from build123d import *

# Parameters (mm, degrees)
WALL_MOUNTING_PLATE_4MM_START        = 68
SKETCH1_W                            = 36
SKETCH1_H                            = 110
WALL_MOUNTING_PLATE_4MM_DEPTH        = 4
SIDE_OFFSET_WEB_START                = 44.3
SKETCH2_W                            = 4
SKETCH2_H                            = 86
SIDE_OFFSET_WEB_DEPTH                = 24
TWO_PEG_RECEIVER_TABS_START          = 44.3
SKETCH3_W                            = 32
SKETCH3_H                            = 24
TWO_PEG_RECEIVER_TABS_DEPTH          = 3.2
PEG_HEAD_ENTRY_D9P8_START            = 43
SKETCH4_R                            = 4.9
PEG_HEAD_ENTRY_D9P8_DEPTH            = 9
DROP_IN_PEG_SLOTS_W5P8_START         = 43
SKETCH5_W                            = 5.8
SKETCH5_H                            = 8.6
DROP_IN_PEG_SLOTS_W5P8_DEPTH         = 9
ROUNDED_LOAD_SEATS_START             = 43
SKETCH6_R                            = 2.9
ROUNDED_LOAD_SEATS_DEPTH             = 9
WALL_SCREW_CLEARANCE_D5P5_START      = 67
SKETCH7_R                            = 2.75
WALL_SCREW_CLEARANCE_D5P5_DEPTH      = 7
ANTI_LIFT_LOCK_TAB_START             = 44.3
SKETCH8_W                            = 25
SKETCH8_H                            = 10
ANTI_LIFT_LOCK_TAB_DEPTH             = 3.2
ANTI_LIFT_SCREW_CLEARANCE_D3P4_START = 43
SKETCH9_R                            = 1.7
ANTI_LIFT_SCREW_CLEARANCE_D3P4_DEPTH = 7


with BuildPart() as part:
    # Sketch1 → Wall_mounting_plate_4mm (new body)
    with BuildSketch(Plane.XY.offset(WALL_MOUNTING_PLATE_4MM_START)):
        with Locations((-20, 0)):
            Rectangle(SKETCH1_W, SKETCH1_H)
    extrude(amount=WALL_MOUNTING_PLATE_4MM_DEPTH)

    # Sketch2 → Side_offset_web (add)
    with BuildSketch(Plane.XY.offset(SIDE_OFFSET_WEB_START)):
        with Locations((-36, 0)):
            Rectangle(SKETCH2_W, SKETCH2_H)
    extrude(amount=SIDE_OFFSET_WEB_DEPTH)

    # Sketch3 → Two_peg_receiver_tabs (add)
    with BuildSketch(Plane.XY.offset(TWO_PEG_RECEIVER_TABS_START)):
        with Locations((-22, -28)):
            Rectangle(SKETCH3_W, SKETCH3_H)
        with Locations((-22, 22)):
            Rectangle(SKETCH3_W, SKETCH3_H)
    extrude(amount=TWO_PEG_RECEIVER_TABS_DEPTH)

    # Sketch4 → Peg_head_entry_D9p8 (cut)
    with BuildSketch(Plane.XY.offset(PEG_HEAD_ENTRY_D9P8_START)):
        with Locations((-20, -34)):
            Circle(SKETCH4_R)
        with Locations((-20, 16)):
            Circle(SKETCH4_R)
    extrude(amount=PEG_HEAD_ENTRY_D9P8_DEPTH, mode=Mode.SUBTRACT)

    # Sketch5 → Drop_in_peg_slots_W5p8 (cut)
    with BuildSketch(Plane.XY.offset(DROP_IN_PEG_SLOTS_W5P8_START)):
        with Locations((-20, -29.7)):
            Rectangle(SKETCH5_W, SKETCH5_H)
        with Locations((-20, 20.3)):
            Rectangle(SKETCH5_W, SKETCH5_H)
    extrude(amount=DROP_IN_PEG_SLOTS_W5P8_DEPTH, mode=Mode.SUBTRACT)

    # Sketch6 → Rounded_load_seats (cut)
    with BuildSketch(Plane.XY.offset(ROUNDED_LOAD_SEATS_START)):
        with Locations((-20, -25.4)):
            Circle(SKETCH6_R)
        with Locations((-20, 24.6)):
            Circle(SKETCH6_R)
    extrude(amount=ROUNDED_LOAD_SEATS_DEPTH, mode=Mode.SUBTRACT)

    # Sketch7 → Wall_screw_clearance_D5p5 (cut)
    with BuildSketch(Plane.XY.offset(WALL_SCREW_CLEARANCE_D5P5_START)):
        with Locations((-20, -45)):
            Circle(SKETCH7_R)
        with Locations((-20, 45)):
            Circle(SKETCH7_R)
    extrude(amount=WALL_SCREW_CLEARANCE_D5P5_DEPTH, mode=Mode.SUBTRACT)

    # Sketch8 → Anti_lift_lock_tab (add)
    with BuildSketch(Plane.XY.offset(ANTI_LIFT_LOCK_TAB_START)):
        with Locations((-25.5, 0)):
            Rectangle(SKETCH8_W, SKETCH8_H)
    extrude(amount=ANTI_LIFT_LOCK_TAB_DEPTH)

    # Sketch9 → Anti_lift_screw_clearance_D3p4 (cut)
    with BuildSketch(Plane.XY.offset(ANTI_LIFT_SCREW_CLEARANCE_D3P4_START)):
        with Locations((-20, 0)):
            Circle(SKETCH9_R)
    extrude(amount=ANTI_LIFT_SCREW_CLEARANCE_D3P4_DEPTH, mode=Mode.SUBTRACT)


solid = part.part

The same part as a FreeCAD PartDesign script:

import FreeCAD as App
import Part
import Sketcher

V = App.Vector
Q = App.Units.Quantity


def add_polygon(sketch, points):
    """Adds a closed chain of lines whose ends are joined by coincident constraints."""
    first, n = sketch.GeometryCount, len(points)
    for a, b in zip(points, points[1:] + points[:1]):
        sketch.addGeometry(Part.LineSegment(App.Vector(*a, 0), App.Vector(*b, 0)), False)
    for i in range(n):
        sketch.addConstraint(Sketcher.Constraint("Coincident", first + i, 2, first + (i + 1) % n, 1))

doc = App.newDocument("Part")
body = doc.addObject("PartDesign::Body", "Body")

# Sketch on XY plane
sketch1 = doc.addObject("Sketcher::SketchObject", "Sketch")
body.addObject(sketch1)
sketch1.AttachmentSupport = (doc.XY_Plane, [""])
sketch1.MapMode = "FlatFace"
sketch1.AttachmentOffset = App.Placement(V(0, 0, 68), App.Rotation())
add_polygon(sketch1, [(-38, 55), (-38, -55), (-2, -55), (-2, 55)])  # lines 0-3
sketch1.addConstraint([
    Sketcher.Constraint("Vertical", 0),
    Sketcher.Constraint("Horizontal", 1),
    Sketcher.Constraint("Vertical", 2),
    Sketcher.Constraint("Horizontal", 3),
    Sketcher.Constraint("DistanceX", 1, 1, 1, 2, Q("36 mm")),
    Sketcher.Constraint("DistanceY", 0, 2, 0, 1, Q("110 mm")),
    Sketcher.Constraint("DistanceX", 0, 2, -1, 1, Q("38 mm")),
    Sketcher.Constraint("DistanceY", 0, 2, -1, 1, Q("55 mm")),
])
pad1 = doc.addObject("PartDesign::Pad", "Pad")
body.addObject(pad1)
pad1.Profile = sketch1
pad1.Length = 4

# Sketch on XY plane
sketch2 = doc.addObject("Sketcher::SketchObject", "Sketch001")
body.addObject(sketch2)
sketch2.AttachmentSupport = (doc.XY_Plane, [""])
sketch2.MapMode = "FlatFace"
sketch2.AttachmentOffset = App.Placement(V(0, 0, 44.3), App.Rotation())
add_polygon(sketch2, [(-38, 43), (-38, -43), (-34, -43), (-34, 43)])  # lines 0-3
sketch2.addConstraint([
    Sketcher.Constraint("Vertical", 0),
    Sketcher.Constraint("Horizontal", 1),
    Sketcher.Constraint("Vertical", 2),
    Sketcher.Constraint("Horizontal", 3),
    Sketcher.Constraint("DistanceX", 1, 1, 1, 2, Q("4 mm")),
    Sketcher.Constraint("DistanceY", 0, 2, 0, 1, Q("86 mm")),
    Sketcher.Constraint("DistanceX", 0, 2, -1, 1, Q("38 mm")),
    Sketcher.Constraint("DistanceY", 0, 2, -1, 1, Q("43 mm")),
])
pad2 = doc.addObject("PartDesign::Pad", "Pad001")
body.addObject(pad2)
pad2.Profile = sketch2
pad2.Length = 24

# Sketch on XY plane
sketch3 = doc.addObject("Sketcher::SketchObject", "Sketch002")
body.addObject(sketch3)
sketch3.AttachmentSupport = (doc.XY_Plane, [""])
sketch3.MapMode = "FlatFace"
sketch3.AttachmentOffset = App.Placement(V(0, 0, 44.3), App.Rotation())
add_polygon(sketch3, [(-38, -16), (-38, -40), (-6, -40), (-6, -16)])  # lines 0-3
add_polygon(sketch3, [(-38, 34), (-38, 10), (-6, 10), (-6, 34)])  # lines 4-7
sketch3.addConstraint([
    Sketcher.Constraint("Vertical", 0),
    Sketcher.Constraint("Horizontal", 1),
    Sketcher.Constraint("Vertical", 2),
    Sketcher.Constraint("Horizontal", 3),
    Sketcher.Constraint("Vertical", 4),
    Sketcher.Constraint("Horizontal", 5),
    Sketcher.Constraint("Vertical", 6),
    Sketcher.Constraint("Horizontal", 7),
    Sketcher.Constraint("Vertical", 3, 2, 4, 2),
    Sketcher.Constraint("Vertical", 2, 2, 5, 2),
    Sketcher.Constraint("Equal", 2, 4),
    Sketcher.Constraint("DistanceX", 1, 1, 1, 2, Q("32 mm")),
    Sketcher.Constraint("DistanceY", 0, 2, 0, 1, Q("24 mm")),
    Sketcher.Constraint("DistanceX", 0, 2, -1, 1, Q("38 mm")),
    Sketcher.Constraint("DistanceY", 0, 2, -1, 1, Q("40 mm")),
    Sketcher.Constraint("DistanceY", -1, 1, 4, 2, Q("10 mm")),
])
pad3 = doc.addObject("PartDesign::Pad", "Pad002")
body.addObject(pad3)
pad3.Profile = sketch3
pad3.Length = 3.2

# Sketch on XY plane
sketch4 = doc.addObject("Sketcher::SketchObject", "Sketch003")
body.addObject(sketch4)
sketch4.AttachmentSupport = (doc.XY_Plane, [""])
sketch4.MapMode = "FlatFace"
sketch4.AttachmentOffset = App.Placement(V(0, 0, 43), App.Rotation())
sketch4.addGeometry([
    Part.Circle(V(-20, -34, 0), V(0, 0, 1), 4.9),
    Part.Circle(V(-20, 16, 0), V(0, 0, 1), 4.9),
], False)
sketch4.addConstraint([
    Sketcher.Constraint("Equal", 0, 1),
    Sketcher.Constraint("Vertical", 0, 3, 1, 3),
    Sketcher.Constraint("Diameter", 0, Q("9.8 mm")),
    Sketcher.Constraint("DistanceX", 0, 3, -1, 1, Q("20 mm")),
    Sketcher.Constraint("DistanceY", 0, 3, -1, 1, Q("34 mm")),
    Sketcher.Constraint("DistanceY", -1, 1, 1, 3, Q("16 mm")),
])
pocket1 = doc.addObject("PartDesign::Pocket", "Pocket")
body.addObject(pocket1)
pocket1.Profile = sketch4
pocket1.Length = 9
pocket1.Reversed = True

# Sketch on XY plane
sketch5 = doc.addObject("Sketcher::SketchObject", "Sketch004")
body.addObject(sketch5)
sketch5.AttachmentSupport = (doc.XY_Plane, [""])
sketch5.MapMode = "FlatFace"
sketch5.AttachmentOffset = App.Placement(V(0, 0, 43), App.Rotation())
add_polygon(sketch5, [(-23, -25), (-23, -34), (-17, -34), (-17, -25)])  # lines 0-3
add_polygon(sketch5, [(-23, 25), (-23, 16), (-17, 16), (-17, 25)])  # lines 4-7
sketch5.addConstraint([
    Sketcher.Constraint("Vertical", 0),
    Sketcher.Constraint("Horizontal", 1),
    Sketcher.Constraint("Vertical", 2),
    Sketcher.Constraint("Horizontal", 3),
    Sketcher.Constraint("Vertical", 4),
    Sketcher.Constraint("Horizontal", 5),
    Sketcher.Constraint("Vertical", 6),
    Sketcher.Constraint("Horizontal", 7),
    Sketcher.Constraint("Vertical", 3, 2, 4, 2),
    Sketcher.Constraint("Vertical", 2, 2, 5, 2),
    Sketcher.Constraint("Equal", 2, 4),
    Sketcher.Constraint("DistanceX", 1, 1, 1, 2, Q("5.8 mm")),
    Sketcher.Constraint("DistanceY", 0, 2, 0, 1, Q("8.6 mm")),
    Sketcher.Constraint("DistanceY", 0, 2, -1, 1, Q("34 mm")),
    Sketcher.Constraint("DistanceY", -1, 1, 4, 2, Q("16 mm")),
    Sketcher.Constraint("DistanceX", 0, 2, -1, 1, Q("22.9 mm")),
])
pocket2 = doc.addObject("PartDesign::Pocket", "Pocket001")
body.addObject(pocket2)
pocket2.Profile = sketch5
pocket2.Length = 9
pocket2.Reversed = True

# Sketch on XY plane
sketch6 = doc.addObject("Sketcher::SketchObject", "Sketch005")
body.addObject(sketch6)
sketch6.AttachmentSupport = (doc.XY_Plane, [""])
sketch6.MapMode = "FlatFace"
sketch6.AttachmentOffset = App.Placement(V(0, 0, 43), App.Rotation())
sketch6.addGeometry([
    Part.Circle(V(-20, -25.4, 0), V(0, 0, 1), 2.9),
    Part.Circle(V(-20, 24.6, 0), V(0, 0, 1), 2.9),
], False)
sketch6.addConstraint([
    Sketcher.Constraint("Equal", 0, 1),
    Sketcher.Constraint("Vertical", 0, 3, 1, 3),
    Sketcher.Constraint("Diameter", 0, Q("5.8 mm")),
    Sketcher.Constraint("DistanceX", 0, 3, -1, 1, Q("20 mm")),
    Sketcher.Constraint("DistanceY", 0, 3, 1, 3, Q("50 mm")),
    Sketcher.Constraint("DistanceY", 0, 3, -1, 1, Q("25.4 mm")),
])
pocket3 = doc.addObject("PartDesign::Pocket", "Pocket002")
body.addObject(pocket3)
pocket3.Profile = sketch6
pocket3.Length = 9
pocket3.Reversed = True

# Sketch on XY plane
sketch7 = doc.addObject("Sketcher::SketchObject", "Sketch006")
body.addObject(sketch7)
sketch7.AttachmentSupport = (doc.XY_Plane, [""])
sketch7.MapMode = "FlatFace"
sketch7.AttachmentOffset = App.Placement(V(0, 0, 67), App.Rotation())
sketch7.addGeometry([
    Part.Circle(V(-20, -45, 0), V(0, 0, 1), 2.8),
    Part.Circle(V(-20, 45, 0), V(0, 0, 1), 2.8),
], False)
sketch7.addConstraint([
    Sketcher.Constraint("Equal", 0, 1),
    Sketcher.Constraint("Symmetric", 0, 3, 1, 3, -1),
    Sketcher.Constraint("Diameter", 0, Q("5.5 mm")),
    Sketcher.Constraint("DistanceX", 0, 3, -1, 1, Q("20 mm")),
    Sketcher.Constraint("DistanceY", 0, 3, -1, 1, Q("45 mm")),
])
pocket4 = doc.addObject("PartDesign::Pocket", "Pocket003")
body.addObject(pocket4)
pocket4.Profile = sketch7
pocket4.Length = 7
pocket4.Reversed = True

# Sketch on XY plane
sketch8 = doc.addObject("Sketcher::SketchObject", "Sketch007")
body.addObject(sketch8)
sketch8.AttachmentSupport = (doc.XY_Plane, [""])
sketch8.MapMode = "FlatFace"
sketch8.AttachmentOffset = App.Placement(V(0, 0, 44.3), App.Rotation())
add_polygon(sketch8, [(-38, 5), (-38, -5), (-13, -5), (-13, 5)])  # lines 0-3
sketch8.addConstraint([
    Sketcher.Constraint("Vertical", 0),
    Sketcher.Constraint("Horizontal", 1),
    Sketcher.Constraint("Vertical", 2),
    Sketcher.Constraint("Horizontal", 3),
    Sketcher.Constraint("DistanceX", 1, 1, 1, 2, Q("25 mm")),
    Sketcher.Constraint("DistanceY", 0, 2, 0, 1, Q("10 mm")),
    Sketcher.Constraint("DistanceX", 0, 2, -1, 1, Q("38 mm")),
    Sketcher.Constraint("DistanceY", 0, 2, -1, 1, Q("5 mm")),
])
pad4 = doc.addObject("PartDesign::Pad", "Pad003")
body.addObject(pad4)
pad4.Profile = sketch8
pad4.Length = 3.2

# Sketch on XY plane
sketch9 = doc.addObject("Sketcher::SketchObject", "Sketch008")
body.addObject(sketch9)
sketch9.AttachmentSupport = (doc.XY_Plane, [""])
sketch9.MapMode = "FlatFace"
sketch9.AttachmentOffset = App.Placement(V(0, 0, 43), App.Rotation())
sketch9.addGeometry(Part.Circle(V(-20, 0, 0), V(0, 0, 1), 1.7), False)
sketch9.addConstraint([
    Sketcher.Constraint("PointOnObject", 0, 3, -1),
    Sketcher.Constraint("Diameter", 0, Q("3.4 mm")),
    Sketcher.Constraint("DistanceX", 0, 3, -1, 1, Q("20 mm")),
])
pocket5 = doc.addObject("PartDesign::Pocket", "Pocket004")
body.addObject(pocket5)
pocket5.Profile = sketch9
pocket5.Length = 7
pocket5.Reversed = True

doc.recompute()
